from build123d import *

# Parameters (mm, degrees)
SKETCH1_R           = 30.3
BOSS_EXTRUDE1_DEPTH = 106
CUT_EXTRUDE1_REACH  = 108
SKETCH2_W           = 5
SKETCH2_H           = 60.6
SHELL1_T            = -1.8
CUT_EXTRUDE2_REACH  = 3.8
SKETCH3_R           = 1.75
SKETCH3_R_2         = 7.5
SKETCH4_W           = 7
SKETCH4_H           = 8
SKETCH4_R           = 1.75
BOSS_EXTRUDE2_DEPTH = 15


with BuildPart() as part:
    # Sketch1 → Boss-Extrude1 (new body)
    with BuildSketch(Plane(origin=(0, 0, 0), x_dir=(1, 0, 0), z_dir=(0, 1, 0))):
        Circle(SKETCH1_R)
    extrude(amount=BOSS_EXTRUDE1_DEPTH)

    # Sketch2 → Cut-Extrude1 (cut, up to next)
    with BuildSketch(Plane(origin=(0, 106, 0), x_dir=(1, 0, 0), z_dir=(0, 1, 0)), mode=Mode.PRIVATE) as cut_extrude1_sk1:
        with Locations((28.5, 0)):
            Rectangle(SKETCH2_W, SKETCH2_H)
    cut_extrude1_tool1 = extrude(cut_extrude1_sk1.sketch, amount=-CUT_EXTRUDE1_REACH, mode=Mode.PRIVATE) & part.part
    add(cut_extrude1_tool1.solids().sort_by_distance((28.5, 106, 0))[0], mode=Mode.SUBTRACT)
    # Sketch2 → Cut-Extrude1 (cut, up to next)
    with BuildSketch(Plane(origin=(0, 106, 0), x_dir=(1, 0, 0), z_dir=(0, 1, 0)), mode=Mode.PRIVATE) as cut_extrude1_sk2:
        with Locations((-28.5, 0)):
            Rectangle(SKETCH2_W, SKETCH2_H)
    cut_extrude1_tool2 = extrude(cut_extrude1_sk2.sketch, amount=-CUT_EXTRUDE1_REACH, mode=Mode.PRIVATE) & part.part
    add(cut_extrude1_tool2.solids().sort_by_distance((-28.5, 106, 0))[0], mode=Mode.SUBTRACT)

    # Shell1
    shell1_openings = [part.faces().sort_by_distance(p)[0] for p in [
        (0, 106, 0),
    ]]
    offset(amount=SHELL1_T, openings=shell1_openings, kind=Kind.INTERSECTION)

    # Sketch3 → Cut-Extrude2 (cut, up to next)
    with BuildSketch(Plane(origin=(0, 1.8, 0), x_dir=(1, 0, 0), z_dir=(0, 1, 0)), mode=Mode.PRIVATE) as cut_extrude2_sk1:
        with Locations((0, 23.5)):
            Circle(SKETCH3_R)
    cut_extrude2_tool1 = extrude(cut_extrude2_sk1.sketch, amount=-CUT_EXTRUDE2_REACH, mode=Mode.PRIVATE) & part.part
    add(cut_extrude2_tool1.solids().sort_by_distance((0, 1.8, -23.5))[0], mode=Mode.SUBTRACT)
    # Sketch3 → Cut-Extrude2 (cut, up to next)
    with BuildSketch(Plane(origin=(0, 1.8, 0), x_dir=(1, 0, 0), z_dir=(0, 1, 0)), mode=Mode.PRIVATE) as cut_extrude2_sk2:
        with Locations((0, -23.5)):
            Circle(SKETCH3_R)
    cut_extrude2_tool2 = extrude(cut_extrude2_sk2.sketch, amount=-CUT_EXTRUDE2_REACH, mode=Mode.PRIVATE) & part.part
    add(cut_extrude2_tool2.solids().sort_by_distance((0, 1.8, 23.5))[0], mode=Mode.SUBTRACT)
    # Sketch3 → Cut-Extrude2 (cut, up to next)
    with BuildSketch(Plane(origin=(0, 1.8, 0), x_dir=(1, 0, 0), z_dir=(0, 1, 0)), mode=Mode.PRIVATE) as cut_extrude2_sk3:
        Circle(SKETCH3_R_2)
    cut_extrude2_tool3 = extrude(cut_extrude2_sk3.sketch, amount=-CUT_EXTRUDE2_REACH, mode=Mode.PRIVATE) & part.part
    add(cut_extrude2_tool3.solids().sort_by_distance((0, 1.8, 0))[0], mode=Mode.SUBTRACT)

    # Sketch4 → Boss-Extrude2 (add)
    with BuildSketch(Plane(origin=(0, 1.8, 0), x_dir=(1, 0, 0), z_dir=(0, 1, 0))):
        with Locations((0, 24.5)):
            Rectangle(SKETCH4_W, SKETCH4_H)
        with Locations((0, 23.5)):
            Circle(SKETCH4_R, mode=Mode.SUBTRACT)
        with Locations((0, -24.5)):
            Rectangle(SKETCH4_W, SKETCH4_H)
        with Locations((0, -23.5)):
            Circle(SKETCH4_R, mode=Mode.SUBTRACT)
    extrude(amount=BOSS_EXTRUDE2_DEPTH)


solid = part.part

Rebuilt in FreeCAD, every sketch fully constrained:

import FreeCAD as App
import Part
import Sketcher


def faces_at(feature, points):
    """Names of the faces that lie closest to the given points."""
    faces = feature.Shape.Faces
    near = lambda p: min(range(len(faces)), key=lambda i: faces[i].distToShape(Part.Vertex(*p))[0])
    return sorted({f"Face{near(p) + 1}" for p in points})

doc = App.newDocument("Part")
body = doc.addObject("PartDesign::Body", "Body")

# Sketch on XZ plane
sketch1 = doc.addObject("Sketcher::SketchObject", "Sketch")
body.addObject(sketch1)
sketch1.AttachmentSupport = (doc.XZ_Plane, [""])
sketch1.MapMode = "FlatFace"
sketch1.addGeometry(Part.Circle(App.Vector(0, 0, 0), App.Vector(0, 0, 1), 30.3), False)
sketch1.addConstraint(Sketcher.Constraint("Coincident", 0, 3, -1, 1))
sketch1.addConstraint(Sketcher.Constraint("Diameter", 0, 60.6))
pad1 = doc.addObject("PartDesign::Pad", "Pad")
body.addObject(pad1)
pad1.Profile = sketch1
pad1.Length = 106
pad1.Reversed = True

# Sketch on XZ plane
sketch2 = doc.addObject("Sketcher::SketchObject", "Sketch001")
body.addObject(sketch2)
sketch2.AttachmentSupport = (doc.XZ_Plane, [""])
sketch2.MapMode = "FlatFace"
sketch2.AttachmentOffset = App.Placement(App.Vector(0, 0, -106), App.Rotation())
sketch2.addGeometry(Part.LineSegment(App.Vector(26, -30.3, 0), App.Vector(26, 30.3, 0)), False)
sketch2.addGeometry(Part.LineSegment(App.Vector(26, 30.3, 0), App.Vector(31, 30.3, 0)), False)
sketch2.addGeometry(Part.LineSegment(App.Vector(31, 30.3, 0), App.Vector(31, -30.3, 0)), False)
sketch2.addGeometry(Part.LineSegment(App.Vector(31, -30.3, 0), App.Vector(26, -30.3, 0)), False)
sketch2.addConstraint(Sketcher.Constraint("Coincident", 0, 2, 1, 1))
sketch2.addConstraint(Sketcher.Constraint("Coincident", 1, 2, 2, 1))
sketch2.addConstraint(Sketcher.Constraint("Coincident", 2, 2, 3, 1))
sketch2.addConstraint(Sketcher.Constraint("Coincident", 3, 2, 0, 1))
sketch2.addConstraint(Sketcher.Constraint("Vertical", 0))
sketch2.addConstraint(Sketcher.Constraint("Horizontal", 1))
sketch2.addConstraint(Sketcher.Constraint("Vertical", 2))
sketch2.addConstraint(Sketcher.Constraint("Horizontal", 3))
sketch2.addConstraint(Sketcher.Constraint("DistanceX", 1, 1, 1, 2, 5.0))
sketch2.addConstraint(Sketcher.Constraint("DistanceY", 0, 1, 0, 2, 60.6))
sketch2.addConstraint(Sketcher.Constraint("DistanceX", -1, 1, 0, 2, 26.0))
sketch2.addConstraint(Sketcher.Constraint("DistanceY", -1, 1, 0, 2, 30.3))
pocket1 = doc.addObject("PartDesign::Pocket", "Pocket")
body.addObject(pocket1)
pocket1.Profile = sketch2
pocket1.Type = "UpToFirst"
pocket1.Reversed = True

# Sketch on XZ plane
sketch3 = doc.addObject("Sketcher::SketchObject", "Sketch002")
body.addObject(sketch3)
sketch3.AttachmentSupport = (doc.XZ_Plane, [""])
sketch3.MapMode = "FlatFace"
sketch3.AttachmentOffset = App.Placement(App.Vector(0, 0, -106), App.Rotation())
sketch3.addGeometry(Part.LineSegment(App.Vector(-31, -30.3, 0), App.Vector(-31, 30.3, 0)), False)
sketch3.addGeometry(Part.LineSegment(App.Vector(-31, 30.3, 0), App.Vector(-26, 30.3, 0)), False)
sketch3.addGeometry(Part.LineSegment(App.Vector(-26, 30.3, 0), App.Vector(-26, -30.3, 0)), False)
sketch3.addGeometry(Part.LineSegment(App.Vector(-26, -30.3, 0), App.Vector(-31, -30.3, 0)), False)
sketch3.addConstraint(Sketcher.Constraint("Coincident", 0, 2, 1, 1))
sketch3.addConstraint(Sketcher.Constraint("Coincident", 1, 2, 2, 1))
sketch3.addConstraint(Sketcher.Constraint("Coincident", 2, 2, 3, 1))
sketch3.addConstraint(Sketcher.Constraint("Coincident", 3, 2, 0, 1))
sketch3.addConstraint(Sketcher.Constraint("Vertical", 0))
sketch3.addConstraint(Sketcher.Constraint("Horizontal", 1))
sketch3.addConstraint(Sketcher.Constraint("Vertical", 2))
sketch3.addConstraint(Sketcher.Constraint("Horizontal", 3))
sketch3.addConstraint(Sketcher.Constraint("DistanceX", 1, 1, 1, 2, 5.0))
sketch3.addConstraint(Sketcher.Constraint("DistanceY", 0, 1, 0, 2, 60.6))
sketch3.addConstraint(Sketcher.Constraint("DistanceX", 0, 2, -1, 1, 31.0))
sketch3.addConstraint(Sketcher.Constraint("DistanceY", -1, 1, 0, 2, 30.3))
pocket2 = doc.addObject("PartDesign::Pocket", "Pocket001")
body.addObject(pocket2)
pocket2.Profile = sketch3
pocket2.Type = "UpToFirst"
pocket2.Reversed = True
doc.recompute()

thickness = doc.addObject("PartDesign::Thickness", "Thickness")
body.addObject(thickness)
thickness.Base = (pocket2, faces_at(pocket2, [(0, 106, 0)]))
thickness.Value = 1.8
thickness.Reversed = True
thickness.Join = "Intersection"

# Sketch on XZ plane
sketch4 = doc.addObject("Sketcher::SketchObject", "Sketch003")
body.addObject(sketch4)
sketch4.AttachmentSupport = (doc.XZ_Plane, [""])
sketch4.MapMode = "FlatFace"
sketch4.AttachmentOffset = App.Placement(App.Vector(0, 0, -1.8), App.Rotation())
sketch4.addGeometry(Part.Circle(App.Vector(0, -23.5, 0), App.Vector(0, 0, 1), 1.75), False)
sketch4.addConstraint(Sketcher.Constraint("PointOnObject", 0, 3, -2))
sketch4.addConstraint(Sketcher.Constraint("Diameter", 0, 3.5))
sketch4.addConstraint(Sketcher.Constraint("DistanceY", 0, 3, -1, 1, 23.5))
pocket3 = doc.addObject("PartDesign::Pocket", "Pocket002")
body.addObject(pocket3)
pocket3.Profile = sketch4
pocket3.Type = "UpToFirst"
pocket3.Reversed = True

# Sketch on XZ plane
sketch5 = doc.addObject("Sketcher::SketchObject", "Sketch004")
body.addObject(sketch5)
sketch5.AttachmentSupport = (doc.XZ_Plane, [""])
sketch5.MapMode = "FlatFace"
sketch5.AttachmentOffset = App.Placement(App.Vector(0, 0, -1.8), App.Rotation())
sketch5.addGeometry(Part.Circle(App.Vector(0, 23.5, 0), App.Vector(0, 0, 1), 1.75), False)
sketch5.addConstraint(Sketcher.Constraint("PointOnObject", 0, 3, -2))
sketch5.addConstraint(Sketcher.Constraint("Diameter", 0, 3.5))
sketch5.addConstraint(Sketcher.Constraint("DistanceY", -1, 1, 0, 3, 23.5))
pocket4 = doc.addObject("PartDesign::Pocket", "Pocket003")
body.addObject(pocket4)
pocket4.Profile = sketch5
pocket4.Type = "UpToFirst"
pocket4.Reversed = True

# Sketch on XZ plane
sketch6 = doc.addObject("Sketcher::SketchObject", "Sketch005")
body.addObject(sketch6)
sketch6.AttachmentSupport = (doc.XZ_Plane, [""])
sketch6.MapMode = "FlatFace"
sketch6.AttachmentOffset = App.Placement(App.Vector(0, 0, -1.8), App.Rotation())
sketch6.addGeometry(Part.Circle(App.Vector(0, 0, 0), App.Vector(0, 0, 1), 7.5), False)
sketch6.addConstraint(Sketcher.Constraint("Coincident", 0, 3, -1, 1))
sketch6.addConstraint(Sketcher.Constraint("Diameter", 0, 15.0))
pocket5 = doc.addObject("PartDesign::Pocket", "Pocket004")
body.addObject(pocket5)
pocket5.Profile = sketch6
pocket5.Type = "UpToFirst"
pocket5.Reversed = True

# Sketch on XZ plane
sketch7 = doc.addObject("Sketcher::SketchObject", "Sketch006")
body.addObject(sketch7)
sketch7.AttachmentSupport = (doc.XZ_Plane, [""])
sketch7.MapMode = "FlatFace"
sketch7.AttachmentOffset = App.Placement(App.Vector(0, 0, -1.8), App.Rotation())
sketch7.addGeometry(Part.LineSegment(App.Vector(-3.5, -28.5, 0), App.Vector(-3.5, -20.5, 0)), False)
sketch7.addGeometry(Part.LineSegment(App.Vector(-3.5, -20.5, 0), App.Vector(3.5, -20.5, 0)), False)
sketch7.addGeometry(Part.LineSegment(App.Vector(3.5, -20.5, 0), App.Vector(3.5, -28.5, 0)), False)
sketch7.addGeometry(Part.LineSegment(App.Vector(3.5, -28.5, 0), App.Vector(-3.5, -28.5, 0)), False)
sketch7.addGeometry(Part.Circle(App.Vector(0, -23.5, 0), App.Vector(0, 0, 1), 1.75), False)
sketch7.addGeometry(Part.LineSegment(App.Vector(-3.5, 20.5, 0), App.Vector(-3.5, 28.5, 0)), False)
sketch7.addGeometry(Part.LineSegment(App.Vector(-3.5, 28.5, 0), App.Vector(3.5, 28.5, 0)), False)
sketch7.addGeometry(Part.LineSegment(App.Vector(3.5, 28.5, 0), App.Vector(3.5, 20.5, 0)), False)
sketch7.addGeometry(Part.LineSegment(App.Vector(3.5, 20.5, 0), App.Vector(-3.5, 20.5, 0)), False)
sketch7.addGeometry(Part.Circle(App.Vector(0, 23.5, 0), App.Vector(0, 0, 1), 1.75), False)
sketch7.addConstraint(Sketcher.Constraint("Coincident", 0, 2, 1, 1))
sketch7.addConstraint(Sketcher.Constraint("Coincident", 1, 2, 2, 1))
sketch7.addConstraint(Sketcher.Constraint("Coincident", 2, 2, 3, 1))
sketch7.addConstraint(Sketcher.Constraint("Coincident", 3, 2, 0, 1))
sketch7.addConstraint(Sketcher.Constraint("Coincident", 5, 2, 6, 1))
sketch7.addConstraint(Sketcher.Constraint("Coincident", 6, 2, 7, 1))
sketch7.addConstraint(Sketcher.Constraint("Coincident", 7, 2, 8, 1))
sketch7.addConstraint(Sketcher.Constraint("Coincident", 8, 2, 5, 1))
sketch7.addConstraint(Sketcher.Constraint("Vertical", 0))
sketch7.addConstraint(Sketcher.Constraint("Horizontal", 1))
sketch7.addConstraint(Sketcher.Constraint("Vertical", 2))
sketch7.addConstraint(Sketcher.Constraint("Horizontal", 3))
sketch7.addConstraint(Sketcher.Constraint("Vertical", 5))
sketch7.addConstraint(Sketcher.Constraint("Horizontal", 6))
sketch7.addConstraint(Sketcher.Constraint("Vertical", 7))
sketch7.addConstraint(Sketcher.Constraint("Horizontal", 8))
sketch7.addConstraint(Sketcher.Constraint("Equal", 4, 9))
sketch7.addConstraint(Sketcher.Constraint("Symmetric", 4, 3, 9, 3, -1, 1))
sketch7.addConstraint(Sketcher.Constraint("Symmetric", 2, 2, 5, 2, -1, 1))
sketch7.addConstraint(Sketcher.Constraint("Symmetric", 0, 2, 7, 2, -1, 1))
sketch7.addConstraint(Sketcher.Constraint("PointOnObject", 4, 3, -2))
sketch7.addConstraint(Sketcher.Constraint("Vertical", 3, 2, 5, 2))
sketch7.addConstraint(Sketcher.Constraint("Diameter", 4, 3.5))
sketch7.addConstraint(Sketcher.Constraint("DistanceX", 1, 1, 1, 2, 7.0))
sketch7.addConstraint(Sketcher.Constraint("DistanceY", 0, 1, 0, 2, 8.0))
sketch7.addConstraint(Sketcher.Constraint("DistanceY", 4, 3, 9, 3, 47.0))
sketch7.addConstraint(Sketcher.Constraint("DistanceY", 4, 3, 0, 2, 3.0))
pad2 = doc.addObject("PartDesign::Pad", "Pad001")
body.addObject(pad2)
pad2.Profile = sketch7
pad2.Length = 15
pad2.Reversed = True

doc.recompute()
